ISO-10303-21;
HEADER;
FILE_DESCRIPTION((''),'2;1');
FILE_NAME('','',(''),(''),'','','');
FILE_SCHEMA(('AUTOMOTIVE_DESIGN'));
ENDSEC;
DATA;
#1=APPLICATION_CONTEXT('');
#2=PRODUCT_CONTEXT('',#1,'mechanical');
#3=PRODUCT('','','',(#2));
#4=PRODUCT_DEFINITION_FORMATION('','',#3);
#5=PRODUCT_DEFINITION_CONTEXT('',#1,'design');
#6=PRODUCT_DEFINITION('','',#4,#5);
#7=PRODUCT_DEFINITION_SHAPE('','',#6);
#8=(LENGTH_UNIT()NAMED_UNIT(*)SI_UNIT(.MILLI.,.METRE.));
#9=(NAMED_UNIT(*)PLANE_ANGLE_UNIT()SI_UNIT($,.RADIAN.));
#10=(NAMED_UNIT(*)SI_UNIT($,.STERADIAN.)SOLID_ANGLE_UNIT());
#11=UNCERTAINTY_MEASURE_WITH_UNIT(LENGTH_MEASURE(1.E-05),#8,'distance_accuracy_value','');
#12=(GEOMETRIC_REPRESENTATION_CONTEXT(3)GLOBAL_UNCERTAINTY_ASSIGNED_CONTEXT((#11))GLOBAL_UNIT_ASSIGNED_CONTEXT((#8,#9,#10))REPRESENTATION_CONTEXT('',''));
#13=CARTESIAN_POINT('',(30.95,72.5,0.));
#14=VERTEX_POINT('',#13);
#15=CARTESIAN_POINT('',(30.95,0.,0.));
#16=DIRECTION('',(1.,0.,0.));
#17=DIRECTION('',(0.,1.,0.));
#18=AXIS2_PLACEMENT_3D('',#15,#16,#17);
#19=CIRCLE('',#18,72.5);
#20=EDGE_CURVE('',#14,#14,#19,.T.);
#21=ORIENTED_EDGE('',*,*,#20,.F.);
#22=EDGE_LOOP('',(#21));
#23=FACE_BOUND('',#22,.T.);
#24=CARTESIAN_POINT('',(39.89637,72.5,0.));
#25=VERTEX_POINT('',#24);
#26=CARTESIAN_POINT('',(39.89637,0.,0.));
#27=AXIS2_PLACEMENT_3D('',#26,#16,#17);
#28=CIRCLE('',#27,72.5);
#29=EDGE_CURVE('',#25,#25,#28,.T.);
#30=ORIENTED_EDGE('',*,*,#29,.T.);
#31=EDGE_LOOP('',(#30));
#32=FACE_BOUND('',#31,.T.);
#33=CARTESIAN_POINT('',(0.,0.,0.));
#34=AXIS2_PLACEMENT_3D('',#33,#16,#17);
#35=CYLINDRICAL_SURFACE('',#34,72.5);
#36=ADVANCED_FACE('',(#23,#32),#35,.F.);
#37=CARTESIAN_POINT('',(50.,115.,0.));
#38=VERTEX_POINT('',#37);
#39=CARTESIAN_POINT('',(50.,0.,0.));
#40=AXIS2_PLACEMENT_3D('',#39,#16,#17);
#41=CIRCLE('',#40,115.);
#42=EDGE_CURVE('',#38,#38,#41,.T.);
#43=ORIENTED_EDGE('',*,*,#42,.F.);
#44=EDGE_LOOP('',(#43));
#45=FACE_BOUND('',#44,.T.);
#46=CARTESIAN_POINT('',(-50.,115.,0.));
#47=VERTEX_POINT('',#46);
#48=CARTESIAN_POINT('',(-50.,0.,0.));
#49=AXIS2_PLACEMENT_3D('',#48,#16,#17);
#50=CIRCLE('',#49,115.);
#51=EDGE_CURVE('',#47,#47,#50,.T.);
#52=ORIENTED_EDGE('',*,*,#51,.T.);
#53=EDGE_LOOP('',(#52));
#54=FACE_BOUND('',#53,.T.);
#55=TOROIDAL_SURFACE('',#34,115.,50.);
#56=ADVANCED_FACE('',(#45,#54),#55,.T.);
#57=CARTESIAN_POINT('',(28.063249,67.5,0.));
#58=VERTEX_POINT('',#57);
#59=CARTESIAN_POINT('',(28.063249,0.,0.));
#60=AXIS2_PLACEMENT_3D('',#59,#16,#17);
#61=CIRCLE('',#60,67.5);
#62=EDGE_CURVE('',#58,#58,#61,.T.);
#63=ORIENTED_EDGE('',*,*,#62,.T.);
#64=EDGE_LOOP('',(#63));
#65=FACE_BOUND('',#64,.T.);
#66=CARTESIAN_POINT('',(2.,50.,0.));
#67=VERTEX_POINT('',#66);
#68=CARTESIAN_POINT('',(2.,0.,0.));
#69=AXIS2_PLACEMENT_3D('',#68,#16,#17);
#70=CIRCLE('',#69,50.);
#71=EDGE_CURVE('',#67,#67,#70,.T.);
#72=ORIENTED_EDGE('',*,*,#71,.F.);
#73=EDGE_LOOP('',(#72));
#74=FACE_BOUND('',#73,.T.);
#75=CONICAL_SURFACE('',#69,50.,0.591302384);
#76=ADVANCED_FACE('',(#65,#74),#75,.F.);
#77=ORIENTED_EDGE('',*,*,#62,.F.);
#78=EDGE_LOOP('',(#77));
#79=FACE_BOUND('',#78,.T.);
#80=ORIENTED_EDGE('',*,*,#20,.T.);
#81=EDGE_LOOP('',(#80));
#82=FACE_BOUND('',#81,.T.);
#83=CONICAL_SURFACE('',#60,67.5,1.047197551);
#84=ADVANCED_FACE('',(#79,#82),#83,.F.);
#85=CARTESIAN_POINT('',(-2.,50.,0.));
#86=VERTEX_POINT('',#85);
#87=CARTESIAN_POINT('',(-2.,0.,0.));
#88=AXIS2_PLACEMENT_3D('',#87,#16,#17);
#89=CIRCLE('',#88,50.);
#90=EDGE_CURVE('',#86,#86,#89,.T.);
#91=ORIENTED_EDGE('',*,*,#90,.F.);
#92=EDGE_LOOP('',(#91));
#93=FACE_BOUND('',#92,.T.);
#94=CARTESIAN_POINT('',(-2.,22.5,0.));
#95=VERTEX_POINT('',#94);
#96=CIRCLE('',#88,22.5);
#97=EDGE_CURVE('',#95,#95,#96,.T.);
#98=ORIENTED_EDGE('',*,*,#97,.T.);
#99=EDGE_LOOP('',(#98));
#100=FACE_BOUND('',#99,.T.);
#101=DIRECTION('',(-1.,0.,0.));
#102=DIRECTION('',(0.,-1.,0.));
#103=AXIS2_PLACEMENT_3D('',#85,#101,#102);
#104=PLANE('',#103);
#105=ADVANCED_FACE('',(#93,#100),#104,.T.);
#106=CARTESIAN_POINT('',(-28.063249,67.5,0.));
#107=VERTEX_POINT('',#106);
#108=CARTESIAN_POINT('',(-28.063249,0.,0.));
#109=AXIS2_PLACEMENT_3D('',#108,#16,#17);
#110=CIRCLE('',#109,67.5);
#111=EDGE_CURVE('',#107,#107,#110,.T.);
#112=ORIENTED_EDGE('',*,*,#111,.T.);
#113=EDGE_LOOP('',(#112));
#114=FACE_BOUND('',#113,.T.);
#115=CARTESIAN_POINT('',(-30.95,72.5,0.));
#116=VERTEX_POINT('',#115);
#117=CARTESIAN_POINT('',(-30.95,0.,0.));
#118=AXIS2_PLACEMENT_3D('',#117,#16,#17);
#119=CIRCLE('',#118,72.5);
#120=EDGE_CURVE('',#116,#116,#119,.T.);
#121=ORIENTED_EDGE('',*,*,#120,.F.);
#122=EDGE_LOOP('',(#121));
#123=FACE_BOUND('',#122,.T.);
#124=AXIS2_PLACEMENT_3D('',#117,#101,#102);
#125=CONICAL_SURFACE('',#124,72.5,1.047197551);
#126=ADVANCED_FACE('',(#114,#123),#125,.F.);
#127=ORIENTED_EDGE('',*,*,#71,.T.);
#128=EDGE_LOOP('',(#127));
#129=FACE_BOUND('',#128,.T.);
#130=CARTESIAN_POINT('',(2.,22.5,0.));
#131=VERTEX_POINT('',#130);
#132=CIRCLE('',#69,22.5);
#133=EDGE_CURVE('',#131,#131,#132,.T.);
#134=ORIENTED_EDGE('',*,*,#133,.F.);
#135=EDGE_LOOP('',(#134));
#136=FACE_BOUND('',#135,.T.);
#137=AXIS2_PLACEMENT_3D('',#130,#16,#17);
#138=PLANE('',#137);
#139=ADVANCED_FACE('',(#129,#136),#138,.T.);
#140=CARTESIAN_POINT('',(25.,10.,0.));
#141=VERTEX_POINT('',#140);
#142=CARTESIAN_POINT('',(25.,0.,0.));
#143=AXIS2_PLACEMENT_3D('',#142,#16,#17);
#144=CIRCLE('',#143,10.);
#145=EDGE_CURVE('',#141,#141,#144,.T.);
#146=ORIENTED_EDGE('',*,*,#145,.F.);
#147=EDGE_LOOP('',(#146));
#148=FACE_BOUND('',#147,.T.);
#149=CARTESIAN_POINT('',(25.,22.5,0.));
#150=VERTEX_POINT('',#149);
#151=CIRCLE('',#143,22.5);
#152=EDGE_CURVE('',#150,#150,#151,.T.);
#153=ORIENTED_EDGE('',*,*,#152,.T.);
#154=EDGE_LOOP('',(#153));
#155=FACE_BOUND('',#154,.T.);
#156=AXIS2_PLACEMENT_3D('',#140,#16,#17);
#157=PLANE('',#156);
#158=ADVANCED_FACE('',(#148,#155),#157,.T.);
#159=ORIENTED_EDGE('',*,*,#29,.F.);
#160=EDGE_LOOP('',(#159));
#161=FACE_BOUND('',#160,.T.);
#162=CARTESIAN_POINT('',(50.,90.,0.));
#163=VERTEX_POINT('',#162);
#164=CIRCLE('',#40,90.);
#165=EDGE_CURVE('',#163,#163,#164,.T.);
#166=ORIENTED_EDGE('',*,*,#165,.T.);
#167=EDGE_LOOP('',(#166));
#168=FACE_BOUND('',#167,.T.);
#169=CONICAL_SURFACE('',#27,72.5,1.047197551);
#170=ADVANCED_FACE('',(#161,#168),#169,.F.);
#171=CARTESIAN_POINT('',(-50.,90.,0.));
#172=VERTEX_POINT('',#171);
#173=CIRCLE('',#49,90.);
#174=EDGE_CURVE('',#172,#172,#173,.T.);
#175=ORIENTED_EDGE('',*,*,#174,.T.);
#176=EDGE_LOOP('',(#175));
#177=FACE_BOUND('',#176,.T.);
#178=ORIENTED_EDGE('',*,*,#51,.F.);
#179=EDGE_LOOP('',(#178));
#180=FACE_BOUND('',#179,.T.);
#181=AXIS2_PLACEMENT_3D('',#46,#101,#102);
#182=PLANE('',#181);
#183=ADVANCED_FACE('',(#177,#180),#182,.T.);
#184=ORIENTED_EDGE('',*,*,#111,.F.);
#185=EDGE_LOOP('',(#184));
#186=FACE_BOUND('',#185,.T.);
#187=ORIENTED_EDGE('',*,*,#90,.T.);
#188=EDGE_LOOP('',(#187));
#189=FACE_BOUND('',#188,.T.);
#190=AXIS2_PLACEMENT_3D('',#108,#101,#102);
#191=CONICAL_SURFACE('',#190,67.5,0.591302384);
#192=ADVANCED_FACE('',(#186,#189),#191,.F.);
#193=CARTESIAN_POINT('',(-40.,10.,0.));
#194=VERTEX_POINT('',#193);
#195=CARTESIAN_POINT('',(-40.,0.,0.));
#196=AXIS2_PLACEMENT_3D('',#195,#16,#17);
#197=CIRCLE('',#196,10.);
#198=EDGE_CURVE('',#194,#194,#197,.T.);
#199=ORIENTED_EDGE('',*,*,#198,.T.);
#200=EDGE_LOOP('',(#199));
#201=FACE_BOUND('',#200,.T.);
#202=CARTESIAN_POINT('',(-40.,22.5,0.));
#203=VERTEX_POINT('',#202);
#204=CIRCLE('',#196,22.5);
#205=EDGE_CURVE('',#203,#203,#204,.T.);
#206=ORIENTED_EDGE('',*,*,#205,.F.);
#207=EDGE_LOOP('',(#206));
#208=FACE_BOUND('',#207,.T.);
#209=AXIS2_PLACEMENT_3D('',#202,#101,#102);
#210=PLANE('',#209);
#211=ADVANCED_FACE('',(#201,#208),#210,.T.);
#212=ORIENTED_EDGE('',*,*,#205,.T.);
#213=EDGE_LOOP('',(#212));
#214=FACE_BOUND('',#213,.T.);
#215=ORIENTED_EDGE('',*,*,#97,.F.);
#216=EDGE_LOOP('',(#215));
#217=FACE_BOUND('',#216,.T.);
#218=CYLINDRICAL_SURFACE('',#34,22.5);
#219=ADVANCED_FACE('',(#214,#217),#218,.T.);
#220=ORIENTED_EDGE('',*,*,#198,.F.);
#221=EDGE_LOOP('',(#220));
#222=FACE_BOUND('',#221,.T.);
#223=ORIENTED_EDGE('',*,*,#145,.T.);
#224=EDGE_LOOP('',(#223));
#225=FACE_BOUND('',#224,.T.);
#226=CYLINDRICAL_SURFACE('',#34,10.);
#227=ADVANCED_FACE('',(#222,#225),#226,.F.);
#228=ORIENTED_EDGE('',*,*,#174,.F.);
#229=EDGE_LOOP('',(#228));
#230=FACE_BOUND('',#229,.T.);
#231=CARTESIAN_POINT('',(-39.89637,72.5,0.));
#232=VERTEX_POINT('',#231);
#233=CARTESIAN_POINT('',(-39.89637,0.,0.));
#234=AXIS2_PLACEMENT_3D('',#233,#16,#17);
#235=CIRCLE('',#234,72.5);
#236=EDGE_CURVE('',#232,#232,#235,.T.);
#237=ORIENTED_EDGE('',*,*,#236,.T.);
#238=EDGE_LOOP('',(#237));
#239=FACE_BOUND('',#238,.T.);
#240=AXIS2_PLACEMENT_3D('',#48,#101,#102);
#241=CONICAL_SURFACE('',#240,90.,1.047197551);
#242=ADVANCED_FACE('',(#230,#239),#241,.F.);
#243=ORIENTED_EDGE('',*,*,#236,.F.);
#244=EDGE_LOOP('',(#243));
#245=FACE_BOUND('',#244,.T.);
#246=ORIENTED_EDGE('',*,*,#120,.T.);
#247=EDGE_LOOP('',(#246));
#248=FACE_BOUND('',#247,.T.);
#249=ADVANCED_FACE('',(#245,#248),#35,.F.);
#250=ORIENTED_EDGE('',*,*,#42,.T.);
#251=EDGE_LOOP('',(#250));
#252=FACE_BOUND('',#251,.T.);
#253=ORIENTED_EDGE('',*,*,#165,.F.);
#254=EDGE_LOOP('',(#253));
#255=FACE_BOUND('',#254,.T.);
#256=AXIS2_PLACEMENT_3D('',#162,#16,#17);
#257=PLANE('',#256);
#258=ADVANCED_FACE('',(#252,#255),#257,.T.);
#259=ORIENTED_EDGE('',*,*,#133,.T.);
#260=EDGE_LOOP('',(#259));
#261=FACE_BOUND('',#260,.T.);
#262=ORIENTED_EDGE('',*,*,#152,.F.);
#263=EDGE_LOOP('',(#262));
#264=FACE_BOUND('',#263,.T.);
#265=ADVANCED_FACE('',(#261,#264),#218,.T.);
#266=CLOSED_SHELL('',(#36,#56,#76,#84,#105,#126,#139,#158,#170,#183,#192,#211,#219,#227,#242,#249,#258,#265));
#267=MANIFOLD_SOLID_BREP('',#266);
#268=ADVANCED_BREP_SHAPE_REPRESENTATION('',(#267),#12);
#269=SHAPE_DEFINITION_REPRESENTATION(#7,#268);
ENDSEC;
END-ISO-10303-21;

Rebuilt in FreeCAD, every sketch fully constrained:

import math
import FreeCAD as App
import Part
import Sketcher
from FreeCAD import Vector
Q = App.Units.Quantity

doc = App.newDocument("Part")
params = doc.addObject("Spreadsheet::Sheet", "Params")
for row, (alias, value) in enumerate([
    ("sketch1_radius", "50 mm"),
    ("sketch1_width", "38 mm"),
    ("sketch1_width2", "65 mm"),
    ("sketch1_width3", "23 mm"),
    ("sketch1_height", "25 mm"),
    ("revolution_angle", "360 deg"),
], start=1):
    params.set(f"A{row}", alias)
    params.set(f"B{row}", "=" + value)
    params.setAlias(f"B{row}", alias)

body = doc.addObject("PartDesign::Body", "Body")

# Sketch on XY plane
sketch1 = body.newObject("Sketcher::SketchObject", "Sketch")
sketch1.AttachmentSupport = (doc.getObject("XY_Plane"), [""])
sketch1.MapMode = "FlatFace"
sketch1.addGeometry([
    Part.LineSegment(Vector(50, 90, 0), Vector(50, 115, 0)),  # 0
    Part.ArcOfCircle(Part.Circle(Vector(0, 115, 0), Vector(0, 0, 1), 50), math.radians(0), math.radians(180)),  # 1
    Part.LineSegment(Vector(-50, 115, 0), Vector(-50, 90, 0)),  # 2
    Part.LineSegment(Vector(-50, 90, 0), Vector(-39.89637, 72.5, 0)),  # 3
    Part.LineSegment(Vector(-39.89637, 72.5, 0), Vector(-30.95, 72.5, 0)),  # 4
    Part.LineSegment(Vector(-30.95, 72.5, 0), Vector(-28.063249, 67.5, 0)),  # 5
    Part.LineSegment(Vector(-28.063249, 67.5, 0), Vector(-2, 50, 0)),  # 6
    Part.LineSegment(Vector(-2, 50, 0), Vector(-2, 22.5, 0)),  # 7
    Part.LineSegment(Vector(-2, 22.5, 0), Vector(-40, 22.5, 0)),  # 8
    Part.LineSegment(Vector(-40, 22.5, 0), Vector(-40, 10, 0)),  # 9
    Part.LineSegment(Vector(-40, 10, 0), Vector(25, 10, 0)),  # 10
    Part.LineSegment(Vector(25, 10, 0), Vector(25, 22.5, 0)),  # 11
    Part.LineSegment(Vector(25, 22.5, 0), Vector(2, 22.5, 0)),  # 12
    Part.LineSegment(Vector(2, 22.5, 0), Vector(2, 50, 0)),  # 13
    Part.LineSegment(Vector(2, 50, 0), Vector(28.063249, 67.5, 0)),  # 14
    Part.LineSegment(Vector(28.063249, 67.5, 0), Vector(30.95, 72.5, 0)),  # 15
    Part.LineSegment(Vector(30.95, 72.5, 0), Vector(39.89637, 72.5, 0)),  # 16
    Part.LineSegment(Vector(39.89637, 72.5, 0), Vector(50, 90, 0)),  # 17
], False)
sketch1.addConstraint([
    Sketcher.Constraint("Tangent", 0, 2, 1, 1),
    Sketcher.Constraint("Tangent", 1, 2, 2, 1),
    Sketcher.Constraint("Coincident", 2, 2, 3, 1),
    Sketcher.Constraint("Coincident", 3, 2, 4, 1),
    Sketcher.Constraint("Coincident", 4, 2, 5, 1),
    Sketcher.Constraint("Coincident", 5, 2, 6, 1),
    Sketcher.Constraint("Coincident", 6, 2, 7, 1),
    Sketcher.Constraint("Coincident", 7, 2, 8, 1),
    Sketcher.Constraint("Coincident", 8, 2, 9, 1),
    Sketcher.Constraint("Coincident", 9, 2, 10, 1),
    Sketcher.Constraint("Coincident", 10, 2, 11, 1),
    Sketcher.Constraint("Coincident", 11, 2, 12, 1),
    Sketcher.Constraint("Coincident", 12, 2, 13, 1),
    Sketcher.Constraint("Coincident", 13, 2, 14, 1),
    Sketcher.Constraint("Coincident", 14, 2, 15, 1),
    Sketcher.Constraint("Coincident", 15, 2, 16, 1),
    Sketcher.Constraint("Coincident", 16, 2, 17, 1),
    Sketcher.Constraint("Coincident", 17, 2, 0, 1),
    Sketcher.Constraint("Vertical", 0),
    Sketcher.Constraint("Vertical", 2),
    Sketcher.Constraint("Horizontal", 4),
    Sketcher.Constraint("Vertical", 7),
    Sketcher.Constraint("Horizontal", 8),
    Sketcher.Constraint("Vertical", 9),
    Sketcher.Constraint("Horizontal", 10),
    Sketcher.Constraint("Vertical", 11),
    Sketcher.Constraint("Horizontal", 12),
    Sketcher.Constraint("Vertical", 13),
    Sketcher.Constraint("Horizontal", 16),
    Sketcher.Constraint("Symmetric", 7, 2, 12, 2, -2),
    Sketcher.Constraint("Symmetric", 5, 2, 14, 2, -2),
    Sketcher.Constraint("Symmetric", 4, 2, 15, 2, -2),
    Sketcher.Constraint("Symmetric", 2, 2, 17, 2, -2),
    Sketcher.Constraint("Parallel", 3, 5),
    Sketcher.Constraint("Parallel", 15, 17),
    Sketcher.Constraint("Horizontal", 6, 2, 13, 2),
    Sketcher.Constraint("Radius", 1, 50.0),
    Sketcher.Constraint("DistanceX", 8, 2, 8, 1, 38.0),
    Sketcher.Constraint("DistanceX", 10, 1, 10, 2, 65.0),
    Sketcher.Constraint("DistanceX", 12, 2, 12, 1, 23.0),
    Sketcher.Constraint("DistanceY", 0, 1, 0, 2, 25.0),
    Sketcher.Constraint("Angle", 3, Q("-60 deg")),
    Sketcher.Constraint("DistanceY", 7, 2, 7, 1, 27.5),
    Sketcher.Constraint("DistanceY", 9, 2, 9, 1, 12.5),
    Sketcher.Constraint("DistanceY", -1, 1, 1, 3, 115.0),
    Sketcher.Constraint("DistanceY", -1, 1, 6, 2, 50.0),
    Sketcher.Constraint("DistanceY", 5, 2, 4, 2, 5.0),
    Sketcher.Constraint("DistanceY", 7, 2, 5, 2, 45.0),
    Sketcher.Constraint("DistanceX", 4, 2, -1, 1, 30.95),
])
sketch1.setExpression("Constraints[36]", "Params.sketch1_radius")
sketch1.setExpression("Constraints[37]", "Params.sketch1_width")
sketch1.setExpression("Constraints[38]", "Params.sketch1_width2")
sketch1.setExpression("Constraints[39]", "Params.sketch1_width3")
sketch1.setExpression("Constraints[40]", "Params.sketch1_height")
revolution = body.newObject("PartDesign::Revolution", "Revolution")
revolution.Profile = sketch1
revolution.ReferenceAxis = (sketch1, ["H_Axis"])
revolution.setExpression("Angle", "Params.revolution_angle")

doc.recompute()
